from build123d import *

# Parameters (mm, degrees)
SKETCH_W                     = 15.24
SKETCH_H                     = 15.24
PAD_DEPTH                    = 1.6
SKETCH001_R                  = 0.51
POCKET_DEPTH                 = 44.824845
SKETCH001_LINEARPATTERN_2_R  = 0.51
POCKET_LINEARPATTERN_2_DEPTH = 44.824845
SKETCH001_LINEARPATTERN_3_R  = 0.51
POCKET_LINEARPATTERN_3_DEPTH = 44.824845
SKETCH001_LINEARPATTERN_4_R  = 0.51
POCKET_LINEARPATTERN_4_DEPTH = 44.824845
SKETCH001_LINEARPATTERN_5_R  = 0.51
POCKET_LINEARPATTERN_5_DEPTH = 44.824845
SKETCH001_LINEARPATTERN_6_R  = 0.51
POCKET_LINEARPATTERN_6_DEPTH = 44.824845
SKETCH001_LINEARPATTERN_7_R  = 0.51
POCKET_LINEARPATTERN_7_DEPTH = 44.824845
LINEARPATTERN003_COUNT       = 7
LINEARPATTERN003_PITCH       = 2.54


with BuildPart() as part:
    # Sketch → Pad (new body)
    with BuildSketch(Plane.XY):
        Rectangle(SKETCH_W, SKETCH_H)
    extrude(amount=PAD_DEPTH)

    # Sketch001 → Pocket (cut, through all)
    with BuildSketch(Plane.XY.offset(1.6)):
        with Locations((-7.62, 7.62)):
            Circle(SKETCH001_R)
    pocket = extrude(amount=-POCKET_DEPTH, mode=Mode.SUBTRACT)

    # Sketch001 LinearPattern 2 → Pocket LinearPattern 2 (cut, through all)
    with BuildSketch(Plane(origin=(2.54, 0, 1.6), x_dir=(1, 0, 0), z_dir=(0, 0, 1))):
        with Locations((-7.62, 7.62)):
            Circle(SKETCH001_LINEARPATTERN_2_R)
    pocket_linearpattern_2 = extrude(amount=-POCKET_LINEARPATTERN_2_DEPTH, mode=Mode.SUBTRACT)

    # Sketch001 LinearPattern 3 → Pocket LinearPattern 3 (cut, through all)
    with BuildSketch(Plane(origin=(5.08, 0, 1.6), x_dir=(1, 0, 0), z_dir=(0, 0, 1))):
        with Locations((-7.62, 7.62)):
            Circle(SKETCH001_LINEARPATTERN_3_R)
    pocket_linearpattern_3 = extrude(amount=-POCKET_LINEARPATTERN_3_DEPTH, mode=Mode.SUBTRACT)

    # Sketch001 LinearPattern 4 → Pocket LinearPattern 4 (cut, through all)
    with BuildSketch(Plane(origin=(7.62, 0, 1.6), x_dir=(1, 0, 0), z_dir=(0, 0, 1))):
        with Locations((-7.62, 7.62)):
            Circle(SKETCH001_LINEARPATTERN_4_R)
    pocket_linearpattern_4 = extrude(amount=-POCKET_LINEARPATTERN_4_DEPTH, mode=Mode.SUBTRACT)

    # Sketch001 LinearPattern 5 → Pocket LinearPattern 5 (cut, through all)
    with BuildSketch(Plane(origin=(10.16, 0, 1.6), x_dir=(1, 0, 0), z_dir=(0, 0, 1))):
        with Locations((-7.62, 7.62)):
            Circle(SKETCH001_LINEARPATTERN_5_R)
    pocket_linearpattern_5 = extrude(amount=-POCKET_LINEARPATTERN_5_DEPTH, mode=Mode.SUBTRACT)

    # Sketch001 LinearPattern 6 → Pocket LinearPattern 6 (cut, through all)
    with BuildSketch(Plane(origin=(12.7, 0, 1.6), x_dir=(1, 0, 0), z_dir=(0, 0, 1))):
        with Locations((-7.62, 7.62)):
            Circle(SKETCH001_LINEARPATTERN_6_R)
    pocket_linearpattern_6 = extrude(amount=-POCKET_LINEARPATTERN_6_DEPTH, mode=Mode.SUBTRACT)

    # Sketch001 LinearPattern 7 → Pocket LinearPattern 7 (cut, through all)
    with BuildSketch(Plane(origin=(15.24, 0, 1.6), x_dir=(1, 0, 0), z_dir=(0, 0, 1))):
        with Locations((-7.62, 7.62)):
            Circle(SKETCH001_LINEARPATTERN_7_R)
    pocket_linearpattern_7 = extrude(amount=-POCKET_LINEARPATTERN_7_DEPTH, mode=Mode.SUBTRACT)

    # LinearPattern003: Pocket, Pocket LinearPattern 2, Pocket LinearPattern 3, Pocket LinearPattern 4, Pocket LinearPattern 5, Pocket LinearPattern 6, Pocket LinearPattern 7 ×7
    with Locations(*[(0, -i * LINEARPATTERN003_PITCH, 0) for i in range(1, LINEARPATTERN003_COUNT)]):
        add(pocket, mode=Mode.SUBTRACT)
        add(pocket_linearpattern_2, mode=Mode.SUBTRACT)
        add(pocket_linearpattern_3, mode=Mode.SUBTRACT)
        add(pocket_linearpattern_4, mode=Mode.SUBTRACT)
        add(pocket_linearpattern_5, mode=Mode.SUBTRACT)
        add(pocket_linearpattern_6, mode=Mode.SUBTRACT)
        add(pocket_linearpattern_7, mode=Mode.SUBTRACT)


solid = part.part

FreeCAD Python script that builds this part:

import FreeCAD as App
import Part
import Sketcher
from FreeCAD import Vector
Q = App.Units.Quantity

doc = App.newDocument("Part")
body = doc.addObject("PartDesign::Body", "Body")

# Sketch on XY plane
sketch1 = body.newObject("Sketcher::SketchObject", "Sketch")
sketch1.AttachmentSupport = (doc.getObject("XY_Plane"), [""])
sketch1.MapMode = "FlatFace"
sketch1.addGeometry([
    Part.LineSegment(Vector(-8, 8, 0), Vector(-8, -8, 0)),
    Part.LineSegment(Vector(-8, -8, 0), Vector(8, -8, 0)),
    Part.LineSegment(Vector(8, -8, 0), Vector(8, 8, 0)),
    Part.LineSegment(Vector(8, 8, 0), Vector(-8, 8, 0)),
], False)
sketch1.addConstraint([
    Sketcher.Constraint("Coincident", 0, 2, 1, 1),
    Sketcher.Constraint("Coincident", 1, 2, 2, 1),
    Sketcher.Constraint("Coincident", 2, 2, 3, 1),
    Sketcher.Constraint("Coincident", 3, 2, 0, 1),
    Sketcher.Constraint("Vertical", 0),
    Sketcher.Constraint("Horizontal", 1),
    Sketcher.Constraint("Vertical", 2),
    Sketcher.Constraint("Horizontal", 3),
    Sketcher.Constraint("Symmetric", 0, 2, 2, 2, -1, 1),
    Sketcher.Constraint("Equal", 3, 0),
    Sketcher.Constraint("DistanceX", 1, 1, 1, 2, Q("15.24 mm")),
])
pad1 = body.newObject("PartDesign::Pad", "Pad")
pad1.Profile = sketch1
pad1.Length = 1.6

# Sketch on XY plane
sketch2 = body.newObject("Sketcher::SketchObject", "Sketch001")
sketch2.AttachmentSupport = (doc.getObject("XY_Plane"), [""])
sketch2.MapMode = "FlatFace"
sketch2.AttachmentOffset = App.Placement(Vector(0, 0, 1.6), App.Rotation())
sketch2.addGeometry(Part.Circle(Vector(-7.6, 7.6, 0), Vector(0, 0, 1), 0.5), False)
sketch2.addConstraint([
    Sketcher.Constraint("Diameter", 0, Q("1.02 mm")),
    Sketcher.Constraint("DistanceX", 0, 3, -1, 1, Q("7.62 mm")),
    Sketcher.Constraint("DistanceY", -1, 1, 0, 3, Q("7.62 mm")),
])
pocket1 = body.newObject("PartDesign::Pocket", "Pocket")
pocket1.Profile = sketch2
pocket1.Type = "ThroughAll"

# Sketch on XY plane
sketch3 = body.newObject("Sketcher::SketchObject", "Sketch002")
sketch3.AttachmentSupport = (doc.getObject("XY_Plane"), [""])
sketch3.MapMode = "FlatFace"
sketch3.AttachmentOffset = App.Placement(Vector(0, 0, 1.6), App.Rotation())
sketch3.addGeometry(Part.Circle(Vector(-5.1, 7.6, 0), Vector(0, 0, 1), 0.5), False)
sketch3.addConstraint([
    Sketcher.Constraint("Diameter", 0, Q("1.02 mm")),
    Sketcher.Constraint("DistanceX", 0, 3, -1, 1, Q("5.08 mm")),
    Sketcher.Constraint("DistanceY", -1, 1, 0, 3, Q("7.62 mm")),
])
pocket2 = body.newObject("PartDesign::Pocket", "Pocket001")
pocket2.Profile = sketch3
pocket2.Type = "ThroughAll"

# Sketch on XY plane
sketch4 = body.newObject("Sketcher::SketchObject", "Sketch003")
sketch4.AttachmentSupport = (doc.getObject("XY_Plane"), [""])
sketch4.MapMode = "FlatFace"
sketch4.AttachmentOffset = App.Placement(Vector(0, 0, 1.6), App.Rotation())
sketch4.addGeometry(Part.Circle(Vector(-2.5, 7.6, 0), Vector(0, 0, 1), 0.5), False)
sketch4.addConstraint([
    Sketcher.Constraint("Diameter", 0, Q("1.02 mm")),
    Sketcher.Constraint("DistanceX", 0, 3, -1, 1, Q("2.54 mm")),
    Sketcher.Constraint("DistanceY", -1, 1, 0, 3, Q("7.62 mm")),
])
pocket3 = body.newObject("PartDesign::Pocket", "Pocket002")
pocket3.Profile = sketch4
pocket3.Type = "ThroughAll"

# Sketch on XY plane
sketch5 = body.newObject("Sketcher::SketchObject", "Sketch004")
sketch5.AttachmentSupport = (doc.getObject("XY_Plane"), [""])
sketch5.MapMode = "FlatFace"
sketch5.AttachmentOffset = App.Placement(Vector(0, 0, 1.6), App.Rotation())
sketch5.addGeometry(Part.Circle(Vector(0, 7.6, 0), Vector(0, 0, 1), 0.5), False)
sketch5.addConstraint([
    Sketcher.Constraint("PointOnObject", 0, 3, -2),
    Sketcher.Constraint("Diameter", 0, Q("1.02 mm")),
    Sketcher.Constraint("DistanceY", -1, 1, 0, 3, Q("7.62 mm")),
])
pocket4 = body.newObject("PartDesign::Pocket", "Pocket003")
pocket4.Profile = sketch5
pocket4.Type = "ThroughAll"

# Sketch on XY plane
sketch6 = body.newObject("Sketcher::SketchObject", "Sketch005")
sketch6.AttachmentSupport = (doc.getObject("XY_Plane"), [""])
sketch6.MapMode = "FlatFace"
sketch6.AttachmentOffset = App.Placement(Vector(0, 0, 1.6), App.Rotation())
sketch6.addGeometry(Part.Circle(Vector(2.5, 7.6, 0), Vector(0, 0, 1), 0.5), False)
sketch6.addConstraint([
    Sketcher.Constraint("Diameter", 0, Q("1.02 mm")),
    Sketcher.Constraint("DistanceX", -1, 1, 0, 3, Q("2.54 mm")),
    Sketcher.Constraint("DistanceY", -1, 1, 0, 3, Q("7.62 mm")),
])
pocket5 = body.newObject("PartDesign::Pocket", "Pocket004")
pocket5.Profile = sketch6
pocket5.Type = "ThroughAll"

# Sketch on XY plane
sketch7 = body.newObject("Sketcher::SketchObject", "Sketch006")
sketch7.AttachmentSupport = (doc.getObject("XY_Plane"), [""])
sketch7.MapMode = "FlatFace"
sketch7.AttachmentOffset = App.Placement(Vector(0, 0, 1.6), App.Rotation())
sketch7.addGeometry(Part.Circle(Vector(5.1, 7.6, 0), Vector(0, 0, 1), 0.5), False)
sketch7.addConstraint([
    Sketcher.Constraint("Diameter", 0, Q("1.02 mm")),
    Sketcher.Constraint("DistanceX", -1, 1, 0, 3, Q("5.08 mm")),
    Sketcher.Constraint("DistanceY", -1, 1, 0, 3, Q("7.62 mm")),
])
pocket6 = body.newObject("PartDesign::Pocket", "Pocket005")
pocket6.Profile = sketch7
pocket6.Type = "ThroughAll"

# Sketch on XY plane
sketch8 = body.newObject("Sketcher::SketchObject", "Sketch007")
sketch8.AttachmentSupport = (doc.getObject("XY_Plane"), [""])
sketch8.MapMode = "FlatFace"
sketch8.AttachmentOffset = App.Placement(Vector(0, 0, 1.6), App.Rotation())
sketch8.addGeometry(Part.Circle(Vector(7.6, 7.6, 0), Vector(0, 0, 1), 0.5), False)
sketch8.addConstraint([
    Sketcher.Constraint("Diameter", 0, Q("1.02 mm")),
    Sketcher.Constraint("DistanceX", -1, 1, 0, 3, Q("7.62 mm")),
    Sketcher.Constraint("DistanceY", -1, 1, 0, 3, Q("7.62 mm")),
])
pocket7 = body.newObject("PartDesign::Pocket", "Pocket006")
pocket7.Profile = sketch8
pocket7.Type = "ThroughAll"
doc.recompute()

linearpattern = body.newObject("PartDesign::LinearPattern", "LinearPattern")
linearpattern.Originals = [pocket1, pocket2, pocket3, pocket4, pocket5, pocket6, pocket7]
linearpattern.Direction = (doc.getObject("Y_Axis"), [""])
linearpattern.Mode = "offset"
linearpattern.Offset = 2.54
linearpattern.Occurrences = 7
linearpattern.Reversed = True
body.Tip = linearpattern

doc.recompute()
